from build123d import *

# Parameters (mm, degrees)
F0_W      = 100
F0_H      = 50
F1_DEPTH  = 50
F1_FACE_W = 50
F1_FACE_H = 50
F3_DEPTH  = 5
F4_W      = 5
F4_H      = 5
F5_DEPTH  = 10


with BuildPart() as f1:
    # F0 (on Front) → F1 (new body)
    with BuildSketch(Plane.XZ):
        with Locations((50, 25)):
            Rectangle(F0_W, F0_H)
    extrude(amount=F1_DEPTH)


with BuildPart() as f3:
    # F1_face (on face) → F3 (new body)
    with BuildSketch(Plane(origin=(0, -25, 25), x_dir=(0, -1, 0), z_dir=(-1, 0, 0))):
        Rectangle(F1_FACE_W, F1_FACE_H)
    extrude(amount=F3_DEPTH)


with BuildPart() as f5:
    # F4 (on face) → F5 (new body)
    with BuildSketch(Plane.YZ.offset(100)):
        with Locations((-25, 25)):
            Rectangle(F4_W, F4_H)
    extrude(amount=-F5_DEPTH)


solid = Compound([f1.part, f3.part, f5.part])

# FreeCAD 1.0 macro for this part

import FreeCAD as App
import Part
import Sketcher
from FreeCAD import Vector


def add_polygon(sketch, points):
    """Adds a closed chain of lines whose ends are joined by coincident constraints."""
    first, n = sketch.GeometryCount, len(points)
    for a, b in zip(points, points[1:] + points[:1]):
        sketch.addGeometry(Part.LineSegment(App.Vector(*a, 0), App.Vector(*b, 0)), False)
    for i in range(n):
        sketch.addConstraint(Sketcher.Constraint("Coincident", first + i, 2, first + (i + 1) % n, 1))

doc = App.newDocument("Part")
params = doc.addObject("Spreadsheet::Sheet", "Params")
for row, (alias, value) in enumerate([
    ("sketch1_width", "100 mm"),
    ("sketch1_height", "50 mm"),
    ("pad1_length", "50 mm"),
    ("sketch2_width", "50 mm"),
    ("pad2_length", "5 mm"),
    ("sketch3_width", "5 mm"),
    ("pad3_length", "10 mm"),
], start=1):
    params.set(f"A{row}", alias)
    params.set(f"B{row}", "=" + value)
    params.setAlias(f"B{row}", alias)

body = doc.addObject("PartDesign::Body", "Body")

# Sketch on XZ plane
sketch1 = body.newObject("Sketcher::SketchObject", "Sketch")
sketch1.AttachmentSupport = (doc.getObject("XZ_Plane"), [""])
sketch1.MapMode = "FlatFace"
add_polygon(sketch1, [(0, 50), (0, 0), (100, 0), (100, 50)])  # lines 0-3
sketch1.addConstraint([
    Sketcher.Constraint("Vertical", 0),
    Sketcher.Constraint("Horizontal", 1),
    Sketcher.Constraint("Vertical", 2),
    Sketcher.Constraint("Horizontal", 3),
    Sketcher.Constraint("Coincident", 0, 2, -1, 1),
    Sketcher.Constraint("DistanceX", 1, 1, 1, 2, 100.0),
    Sketcher.Constraint("DistanceY", 0, 2, 0, 1, 50.0),
])
sketch1.setExpression("Constraints[9]", "Params.sketch1_width")
sketch1.setExpression("Constraints[10]", "Params.sketch1_height")
pad1 = body.newObject("PartDesign::Pad", "Pad")
pad1.Profile = sketch1
pad1.setExpression("Length", "Params.pad1_length")
body2 = doc.addObject("PartDesign::Body", "Body001")

# Sketch on YZ plane
sketch2 = body2.newObject("Sketcher::SketchObject", "Sketch001")
sketch2.AttachmentSupport = (doc.getObject("YZ_Plane001"), [""])
sketch2.MapMode = "FlatFace"
add_polygon(sketch2, [(0, 50), (0, 0), (-50, 0), (-50, 50)])  # lines 0-3
sketch2.addConstraint([
    Sketcher.Constraint("Vertical", 0),
    Sketcher.Constraint("Horizontal", 1),
    Sketcher.Constraint("Vertical", 2),
    Sketcher.Constraint("Horizontal", 3),
    Sketcher.Constraint("Coincident", 0, 2, -1, 1),
    Sketcher.Constraint("Equal", 3, 0),
    Sketcher.Constraint("DistanceX", 1, 2, 1, 1, 50.0),
])
sketch2.setExpression("Constraints[10]", "Params.sketch2_width")
pad2 = body2.newObject("PartDesign::Pad", "Pad001")
pad2.Profile = sketch2
pad2.setExpression("Length", "Params.pad2_length")
pad2.Reversed = True
body3 = doc.addObject("PartDesign::Body", "Body002")

# Sketch on YZ plane
sketch3 = body3.newObject("Sketcher::SketchObject", "Sketch002")
sketch3.AttachmentSupport = (doc.getObject("YZ_Plane002"), [""])
sketch3.MapMode = "FlatFace"
sketch3.AttachmentOffset = App.Placement(Vector(0, 0, 100), App.Rotation())
add_polygon(sketch3, [(-27.5, 27.5), (-27.5, 22.5), (-22.5, 22.5), (-22.5, 27.5)])  # lines 0-3
sketch3.addConstraint([
    Sketcher.Constraint("Vertical", 0),
    Sketcher.Constraint("Horizontal", 1),
    Sketcher.Constraint("Vertical", 2),
    Sketcher.Constraint("Horizontal", 3),
    Sketcher.Constraint("Equal", 3, 0),
    Sketcher.Constraint("DistanceX", 1, 1, 1, 2, 5.0),
    Sketcher.Constraint("DistanceX", 0, 2, -1, 1, 27.5),
    Sketcher.Constraint("DistanceY", -1, 1, 0, 2, 22.5),
])
sketch3.setExpression("Constraints[9]", "Params.sketch3_width")
pad3 = body3.newObject("PartDesign::Pad", "Pad002")
pad3.Profile = sketch3
pad3.setExpression("Length", "Params.pad3_length")
pad3.Reversed = True

doc.recompute()
